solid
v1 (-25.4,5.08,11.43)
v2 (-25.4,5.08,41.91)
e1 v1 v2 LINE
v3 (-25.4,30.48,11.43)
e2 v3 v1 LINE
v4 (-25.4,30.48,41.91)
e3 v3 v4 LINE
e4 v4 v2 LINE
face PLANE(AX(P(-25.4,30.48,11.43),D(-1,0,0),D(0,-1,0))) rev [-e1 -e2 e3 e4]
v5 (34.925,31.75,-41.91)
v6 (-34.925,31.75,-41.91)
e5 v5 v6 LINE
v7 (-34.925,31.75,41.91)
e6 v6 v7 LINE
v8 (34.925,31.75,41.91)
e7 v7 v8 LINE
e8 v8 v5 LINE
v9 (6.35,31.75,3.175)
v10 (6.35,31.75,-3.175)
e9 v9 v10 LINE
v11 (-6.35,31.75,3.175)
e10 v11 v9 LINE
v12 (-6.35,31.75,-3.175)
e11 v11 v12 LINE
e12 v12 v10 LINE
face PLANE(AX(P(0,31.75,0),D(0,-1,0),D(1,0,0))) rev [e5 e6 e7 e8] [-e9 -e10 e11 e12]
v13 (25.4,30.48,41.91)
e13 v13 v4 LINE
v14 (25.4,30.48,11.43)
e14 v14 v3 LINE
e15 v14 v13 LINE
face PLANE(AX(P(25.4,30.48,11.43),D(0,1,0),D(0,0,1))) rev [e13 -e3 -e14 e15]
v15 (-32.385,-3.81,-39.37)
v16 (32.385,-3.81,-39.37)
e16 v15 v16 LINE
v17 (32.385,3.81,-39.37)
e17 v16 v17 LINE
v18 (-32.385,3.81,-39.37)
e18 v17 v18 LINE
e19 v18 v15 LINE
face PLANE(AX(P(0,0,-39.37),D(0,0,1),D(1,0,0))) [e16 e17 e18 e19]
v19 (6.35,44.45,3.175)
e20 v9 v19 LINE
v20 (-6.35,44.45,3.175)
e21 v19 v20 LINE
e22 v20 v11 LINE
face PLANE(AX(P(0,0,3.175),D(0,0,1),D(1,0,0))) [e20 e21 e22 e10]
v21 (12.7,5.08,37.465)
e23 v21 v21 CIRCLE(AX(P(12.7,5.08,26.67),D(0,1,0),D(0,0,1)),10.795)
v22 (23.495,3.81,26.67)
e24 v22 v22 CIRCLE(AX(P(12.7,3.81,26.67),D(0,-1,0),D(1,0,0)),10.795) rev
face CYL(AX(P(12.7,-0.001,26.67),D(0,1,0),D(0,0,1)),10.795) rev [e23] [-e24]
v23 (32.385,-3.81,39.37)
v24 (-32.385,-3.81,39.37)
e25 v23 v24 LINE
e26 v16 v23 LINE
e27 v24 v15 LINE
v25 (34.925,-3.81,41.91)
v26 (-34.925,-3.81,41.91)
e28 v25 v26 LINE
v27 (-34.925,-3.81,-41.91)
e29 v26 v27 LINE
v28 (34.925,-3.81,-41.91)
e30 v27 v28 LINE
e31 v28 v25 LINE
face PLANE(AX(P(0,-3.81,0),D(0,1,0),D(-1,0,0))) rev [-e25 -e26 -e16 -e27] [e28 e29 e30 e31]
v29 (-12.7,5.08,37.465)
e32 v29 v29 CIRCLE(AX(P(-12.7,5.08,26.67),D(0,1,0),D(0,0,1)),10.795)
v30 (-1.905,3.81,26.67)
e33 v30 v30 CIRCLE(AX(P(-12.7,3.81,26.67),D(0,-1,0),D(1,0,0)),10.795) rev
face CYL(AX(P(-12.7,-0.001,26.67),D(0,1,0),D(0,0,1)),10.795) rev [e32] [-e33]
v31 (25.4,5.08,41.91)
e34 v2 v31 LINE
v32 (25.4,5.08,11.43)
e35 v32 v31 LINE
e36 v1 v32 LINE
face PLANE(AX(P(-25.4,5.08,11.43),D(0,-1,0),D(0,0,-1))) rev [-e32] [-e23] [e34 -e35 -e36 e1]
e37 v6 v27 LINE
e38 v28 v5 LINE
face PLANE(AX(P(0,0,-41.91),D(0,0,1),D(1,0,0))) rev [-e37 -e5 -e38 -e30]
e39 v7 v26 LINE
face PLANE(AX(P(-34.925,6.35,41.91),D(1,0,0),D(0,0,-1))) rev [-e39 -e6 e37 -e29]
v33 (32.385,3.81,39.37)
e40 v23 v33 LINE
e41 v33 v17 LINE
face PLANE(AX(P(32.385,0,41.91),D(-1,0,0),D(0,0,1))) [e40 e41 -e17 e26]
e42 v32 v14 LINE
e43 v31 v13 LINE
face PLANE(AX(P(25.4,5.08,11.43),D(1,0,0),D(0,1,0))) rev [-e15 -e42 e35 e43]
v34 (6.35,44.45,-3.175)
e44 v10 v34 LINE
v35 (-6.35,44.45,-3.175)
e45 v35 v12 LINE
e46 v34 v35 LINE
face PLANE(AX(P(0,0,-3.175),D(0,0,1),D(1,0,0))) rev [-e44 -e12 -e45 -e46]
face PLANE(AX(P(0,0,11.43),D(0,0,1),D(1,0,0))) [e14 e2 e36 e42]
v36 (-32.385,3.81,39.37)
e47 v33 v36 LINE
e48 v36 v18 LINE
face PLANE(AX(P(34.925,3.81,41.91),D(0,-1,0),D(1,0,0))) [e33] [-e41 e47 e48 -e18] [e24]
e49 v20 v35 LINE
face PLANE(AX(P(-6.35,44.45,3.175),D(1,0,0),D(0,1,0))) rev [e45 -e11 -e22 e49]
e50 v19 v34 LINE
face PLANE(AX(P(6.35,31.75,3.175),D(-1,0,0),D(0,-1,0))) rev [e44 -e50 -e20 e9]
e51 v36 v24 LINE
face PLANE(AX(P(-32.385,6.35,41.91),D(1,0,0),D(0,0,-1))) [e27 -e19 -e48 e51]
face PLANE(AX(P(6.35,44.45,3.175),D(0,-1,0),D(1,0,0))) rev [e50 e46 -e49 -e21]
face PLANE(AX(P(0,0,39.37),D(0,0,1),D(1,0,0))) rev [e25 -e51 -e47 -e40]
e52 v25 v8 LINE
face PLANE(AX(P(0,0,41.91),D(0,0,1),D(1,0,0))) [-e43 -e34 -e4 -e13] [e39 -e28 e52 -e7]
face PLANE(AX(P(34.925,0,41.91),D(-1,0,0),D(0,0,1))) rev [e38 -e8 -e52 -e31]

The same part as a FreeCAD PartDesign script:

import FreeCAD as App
import Part
import Sketcher
Q = App.Units.Quantity


def faces_at(feature, points):
    """Names of the faces that lie closest to the given points."""
    faces = feature.Shape.Faces
    near = lambda p: min(range(len(faces)), key=lambda i: faces[i].distToShape(Part.Vertex(*p))[0])
    return sorted({f"Face{near(p) + 1}" for p in points})

doc = App.newDocument("Part")
body = doc.addObject("PartDesign::Body", "Body")

sketch1 = doc.addObject("Sketcher::SketchObject", "Sketch")
body.addObject(sketch1)
sketch1.AttachmentSupport = (doc.XY_Plane, [""])
sketch1.MapMode = "FlatFace"
sketch1.addGeometry(Part.LineSegment(App.Vector(-35, 6, 0), App.Vector(-35, 0, 0)), False)
sketch1.addGeometry(Part.LineSegment(App.Vector(-35, 0, 0), App.Vector(35, 0, 0)), False)
sketch1.addGeometry(Part.LineSegment(App.Vector(35, 0, 0), App.Vector(35, 6, 0)), False)
sketch1.addGeometry(Part.LineSegment(App.Vector(35, 6, 0), App.Vector(-35, 6, 0)), False)
sketch1.addConstraint(Sketcher.Constraint("Coincident", 0, 2, 1, 1))
sketch1.addConstraint(Sketcher.Constraint("Coincident", 1, 2, 2, 1))
sketch1.addConstraint(Sketcher.Constraint("Coincident", 2, 2, 3, 1))
sketch1.addConstraint(Sketcher.Constraint("Coincident", 3, 2, 0, 1))
sketch1.addConstraint(Sketcher.Constraint("Vertical", 0))
sketch1.addConstraint(Sketcher.Constraint("Horizontal", 1))
sketch1.addConstraint(Sketcher.Constraint("Vertical", 2))
sketch1.addConstraint(Sketcher.Constraint("Horizontal", 3))
sketch1.addConstraint(Sketcher.Constraint("Symmetric", 0, 2, 1, 2, -1, 1))
sketch1.addConstraint(Sketcher.Constraint("DistanceX", 1, 1, 1, 2, Q("2.75 in")))
sketch1.addConstraint(Sketcher.Constraint("DistanceY", 0, 2, 0, 1, Q("0.25 in")))
pad1 = doc.addObject("PartDesign::Pad", "Pad")
body.addObject(pad1)
pad1.Profile = sketch1
pad1.Length = Q("3.3 in")
pad1.Midplane = True
doc.recompute()

thickness = doc.addObject("PartDesign::Thickness", "Thickness")
body.addObject(thickness)
thickness.Base = (pad1, faces_at(pad1, [(0, 0, 0)]))
thickness.Value = Q("0.1 in")
thickness.Reversed = True
thickness.Join = "Intersection"

sketch2 = doc.addObject("Sketcher::SketchObject", "Sketch001")
body.addObject(sketch2)
sketch2.AttachmentSupport = (doc.XZ_Plane, [""])
sketch2.MapMode = "FlatFace"
sketch2.AttachmentOffset = App.Placement(App.Vector(0, 0, -0.25 * 25.4), App.Rotation())
sketch2.addGeometry(Part.LineSegment(App.Vector(-35, -42, 0), App.Vector(-35, 42, 0)), False)
sketch2.addGeometry(Part.LineSegment(App.Vector(-35, 42, 0), App.Vector(35, 42, 0)), False)
sketch2.addGeometry(Part.LineSegment(App.Vector(35, 42, 0), App.Vector(35, -42, 0)), False)
sketch2.addGeometry(Part.LineSegment(App.Vector(35, -42, 0), App.Vector(-35, -42, 0)), False)
sketch2.addConstraint(Sketcher.Constraint("Coincident", 0, 2, 1, 1))
sketch2.addConstraint(Sketcher.Constraint("Coincident", 1, 2, 2, 1))
sketch2.addConstraint(Sketcher.Constraint("Coincident", 2, 2, 3, 1))
sketch2.addConstraint(Sketcher.Constraint("Coincident", 3, 2, 0, 1))
sketch2.addConstraint(Sketcher.Constraint("Vertical", 0))
sketch2.addConstraint(Sketcher.Constraint("Horizontal", 1))
sketch2.addConstraint(Sketcher.Constraint("Vertical", 2))
sketch2.addConstraint(Sketcher.Constraint("Horizontal", 3))
sketch2.addConstraint(Sketcher.Constraint("Symmetric", 0, 2, 2, 2, -1, 1))
sketch2.addConstraint(Sketcher.Constraint("DistanceY", 0, 1, 0, 2, Q("3.3 in")))
sketch2.addConstraint(Sketcher.Constraint("DistanceX", 1, 1, 1, 2, Q("2.75 in")))
pad2 = doc.addObject("PartDesign::Pad", "Pad001")
body.addObject(pad2)
pad2.Profile = sketch2
pad2.Length = Q("1 in")
pad2.Reversed = True

sketch3 = doc.addObject("Sketcher::SketchObject", "Sketch002")
body.addObject(sketch3)
sketch3.AttachmentSupport = (doc.XY_Plane, [""])
sketch3.MapMode = "FlatFace"
sketch3.addGeometry(Part.LineSegment(App.Vector(-6, 44, 0), App.Vector(-6, 32, 0)), False)
sketch3.addGeometry(Part.LineSegment(App.Vector(-6, 32, 0), App.Vector(6, 32, 0)), False)
sketch3.addGeometry(Part.LineSegment(App.Vector(6, 32, 0), App.Vector(6, 44, 0)), False)
sketch3.addGeometry(Part.LineSegment(App.Vector(6, 44, 0), App.Vector(-6, 44, 0)), False)
sketch3.addConstraint(Sketcher.Constraint("Coincident", 0, 2, 1, 1))
sketch3.addConstraint(Sketcher.Constraint("Coincident", 1, 2, 2, 1))
sketch3.addConstraint(Sketcher.Constraint("Coincident", 2, 2, 3, 1))
sketch3.addConstraint(Sketcher.Constraint("Coincident", 3, 2, 0, 1))
sketch3.addConstraint(Sketcher.Constraint("Vertical", 0))
sketch3.addConstraint(Sketcher.Constraint("Horizontal", 1))
sketch3.addConstraint(Sketcher.Constraint("Vertical", 2))
sketch3.addConstraint(Sketcher.Constraint("Horizontal", 3))
sketch3.addConstraint(Sketcher.Constraint("Equal", 3, 0))
sketch3.addConstraint(Sketcher.Constraint("DistanceX", 1, 1, 1, 2, Q("0.5 in")))
sketch3.addConstraint(Sketcher.Constraint("DistanceX", 0, 2, -1, 1, Q("0.25 in")))
sketch3.addConstraint(Sketcher.Constraint("DistanceY", -1, 1, 0, 2, Q("1.25 in")))
pad3 = doc.addObject("PartDesign::Pad", "Pad002")
body.addObject(pad3)
pad3.Profile = sketch3
pad3.Length = Q("0.25 in")
pad3.Midplane = True

sketch4 = doc.addObject("Sketcher::SketchObject", "Sketch003")
body.addObject(sketch4)
sketch4.AttachmentSupport = (doc.XY_Plane, [""])
sketch4.MapMode = "FlatFace"
sketch4.AttachmentOffset = App.Placement(App.Vector(0, 0, 1.65 * 25.4), App.Rotation())
sketch4.addGeometry(Part.LineSegment(App.Vector(-25, 30, 0), App.Vector(-25, 5, 0)), False)
sketch4.addGeometry(Part.LineSegment(App.Vector(-25, 5, 0), App.Vector(25, 5, 0)), False)
sketch4.addGeometry(Part.LineSegment(App.Vector(25, 5, 0), App.Vector(25, 30, 0)), False)
sketch4.addGeometry(Part.LineSegment(App.Vector(25, 30, 0), App.Vector(-25, 30, 0)), False)
sketch4.addConstraint(Sketcher.Constraint("Coincident", 0, 2, 1, 1))
sketch4.addConstraint(Sketcher.Constraint("Coincident", 1, 2, 2, 1))
sketch4.addConstraint(Sketcher.Constraint("Coincident", 2, 2, 3, 1))
sketch4.addConstraint(Sketcher.Constraint("Coincident", 3, 2, 0, 1))
sketch4.addConstraint(Sketcher.Constraint("Vertical", 0))
sketch4.addConstraint(Sketcher.Constraint("Horizontal", 1))
sketch4.addConstraint(Sketcher.Constraint("Vertical", 2))
sketch4.addConstraint(Sketcher.Constraint("Horizontal", 3))
sketch4.addConstraint(Sketcher.Constraint("DistanceX", 1, 1, 1, 2, Q("2 in")))
sketch4.addConstraint(Sketcher.Constraint("DistanceY", 0, 2, 0, 1, Q("1 in")))
sketch4.addConstraint(Sketcher.Constraint("DistanceX", 0, 2, -1, 1, Q("1 in")))
sketch4.addConstraint(Sketcher.Constraint("DistanceY", -1, 1, 0, 2, Q("0.2 in")))
pocket1 = doc.addObject("PartDesign::Pocket", "Pocket")
body.addObject(pocket1)
pocket1.Profile = sketch4
pocket1.Length = Q("1.2 in")

sketch5 = doc.addObject("Sketcher::SketchObject", "Sketch004")
body.addObject(sketch5)
sketch5.AttachmentSupport = (doc.XZ_Plane, [""])
sketch5.MapMode = "FlatFace"
sketch5.AttachmentOffset = App.Placement(App.Vector(0, 0, -0.2 * 25.4), App.Rotation())
sketch5.addGeometry(Part.Circle(App.Vector(-13, 27, 0), App.Vector(0, 0, 1), 11), False)
sketch5.addConstraint(Sketcher.Constraint("Diameter", 0, Q("0.85 in")))
sketch5.addConstraint(Sketcher.Constraint("DistanceX", 0, 3, -1, 1, Q("0.5 in")))
sketch5.addConstraint(Sketcher.Constraint("DistanceY", -1, 1, 0, 3, Q("1.05 in")))
pocket2 = doc.addObject("PartDesign::Pocket", "Pocket001")
body.addObject(pocket2)
pocket2.Profile = sketch5
pocket2.Type = "UpToFirst"
pocket2.Reversed = True

sketch6 = doc.addObject("Sketcher::SketchObject", "Sketch005")
body.addObject(sketch6)
sketch6.AttachmentSupport = (doc.XZ_Plane, [""])
sketch6.MapMode = "FlatFace"
sketch6.AttachmentOffset = App.Placement(App.Vector(0, 0, -0.2 * 25.4), App.Rotation())
sketch6.addGeometry(Part.Circle(App.Vector(13, 27, 0), App.Vector(0, 0, 1), 11), False)
sketch6.addConstraint(Sketcher.Constraint("Diameter", 0, Q("0.85 in")))
sketch6.addConstraint(Sketcher.Constraint("DistanceX", -1, 1, 0, 3, Q("0.5 in")))
sketch6.addConstraint(Sketcher.Constraint("DistanceY", -1, 1, 0, 3, Q("1.05 in")))
pocket3 = doc.addObject("PartDesign::Pocket", "Pocket002")
body.addObject(pocket3)
pocket3.Profile = sketch6
pocket3.Type = "UpToFirst"
pocket3.Reversed = True

sketch7 = doc.addObject("Sketcher::SketchObject", "Sketch006")
body.addObject(sketch7)
sketch7.AttachmentSupport = (doc.XZ_Plane, [""])
sketch7.MapMode = "FlatFace"
sketch7.addGeometry(Part.LineSegment(App.Vector(-35, 42, 0), App.Vector(-35, -42, 0)), False)
sketch7.addGeometry(Part.LineSegment(App.Vector(-35, -42, 0), App.Vector(35, -42, 0)), False)
sketch7.addGeometry(Part.LineSegment(App.Vector(35, -42, 0), App.Vector(35, 42, 0)), False)
sketch7.addGeometry(Part.LineSegment(App.Vector(35, 42, 0), App.Vector(-35, 42, 0)), False)
sketch7.addGeometry(Part.LineSegment(App.Vector(32, -39, 0), App.Vector(-32, -39, 0)), False)
sketch7.addGeometry(Part.LineSegment(App.Vector(-32, -39, 0), App.Vector(-32, 39, 0)), False)
sketch7.addGeometry(Part.LineSegment(App.Vector(-32, 39, 0), App.Vector(32, 39, 0)), False)
sketch7.addGeometry(Part.LineSegment(App.Vector(32, 39, 0), App.Vector(32, -39, 0)), False)
sketch7.addConstraint(Sketcher.Constraint("Coincident", 0, 2, 1, 1))
sketch7.addConstraint(Sketcher.Constraint("Coincident", 1, 2, 2, 1))
sketch7.addConstraint(Sketcher.Constraint("Coincident", 2, 2, 3, 1))
sketch7.addConstraint(Sketcher.Constraint("Coincident", 3, 2, 0, 1))
sketch7.addConstraint(Sketcher.Constraint("Coincident", 4, 2, 5, 1))
sketch7.addConstraint(Sketcher.Constraint("Coincident", 5, 2, 6, 1))
sketch7.addConstraint(Sketcher.Constraint("Coincident", 6, 2, 7, 1))
sketch7.addConstraint(Sketcher.Constraint("Coincident", 7, 2, 4, 1))
sketch7.addConstraint(Sketcher.Constraint("Vertical", 0))
sketch7.addConstraint(Sketcher.Constraint("Horizontal", 1))
sketch7.addConstraint(Sketcher.Constraint("Vertical", 2))
sketch7.addConstraint(Sketcher.Constraint("Horizontal", 3))
sketch7.addConstraint(Sketcher.Constraint("Horizontal", 4))
sketch7.addConstraint(Sketcher.Constraint("Vertical", 5))
sketch7.addConstraint(Sketcher.Constraint("Horizontal", 6))
sketch7.addConstraint(Sketcher.Constraint("Vertical", 7))
sketch7.addConstraint(Sketcher.Constraint("Symmetric", 0, 2, 2, 2, -1, 1))
sketch7.addConstraint(Sketcher.Constraint("Symmetric", 4, 2, 6, 2, -1, 1))
sketch7.addConstraint(Sketcher.Constraint("DistanceY", 0, 2, 0, 1, Q("3.3 in")))
sketch7.addConstraint(Sketcher.Constraint("DistanceY", 5, 1, 5, 2, Q("3.1 in")))
sketch7.addConstraint(Sketcher.Constraint("DistanceX", 1, 1, 1, 2, Q("2.75 in")))
sketch7.addConstraint(Sketcher.Constraint("DistanceX", 4, 2, 4, 1, Q("2.55 in")))
pad4 = doc.addObject("PartDesign::Pad", "Pad003")
body.addObject(pad4)
pad4.Profile = sketch7
pad4.Length = Q("0.15 in")

doc.recompute()
